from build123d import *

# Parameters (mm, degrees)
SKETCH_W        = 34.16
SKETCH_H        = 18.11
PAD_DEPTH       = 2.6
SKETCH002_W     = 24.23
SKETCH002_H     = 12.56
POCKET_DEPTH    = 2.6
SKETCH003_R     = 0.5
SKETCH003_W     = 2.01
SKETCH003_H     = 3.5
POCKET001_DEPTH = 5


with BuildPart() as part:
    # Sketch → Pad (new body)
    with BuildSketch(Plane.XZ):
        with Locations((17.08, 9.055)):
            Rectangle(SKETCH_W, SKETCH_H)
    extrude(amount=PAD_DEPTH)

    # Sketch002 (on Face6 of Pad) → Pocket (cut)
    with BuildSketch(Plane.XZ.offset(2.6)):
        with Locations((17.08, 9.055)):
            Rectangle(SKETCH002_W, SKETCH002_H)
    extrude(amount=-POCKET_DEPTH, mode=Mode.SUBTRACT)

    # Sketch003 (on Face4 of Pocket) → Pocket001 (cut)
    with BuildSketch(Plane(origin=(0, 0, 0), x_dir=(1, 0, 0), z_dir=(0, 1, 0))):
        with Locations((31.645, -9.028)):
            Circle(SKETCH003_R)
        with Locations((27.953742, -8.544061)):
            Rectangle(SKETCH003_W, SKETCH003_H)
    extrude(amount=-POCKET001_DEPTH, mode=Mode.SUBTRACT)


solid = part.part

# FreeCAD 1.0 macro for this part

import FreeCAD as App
import Part
import Sketcher
Q = App.Units.Quantity


def add_polygon(sketch, points):
    """Adds a closed chain of lines whose ends are joined by coincident constraints."""
    first, n = sketch.GeometryCount, len(points)
    for a, b in zip(points, points[1:] + points[:1]):
        sketch.addGeometry(Part.LineSegment(App.Vector(*a, 0), App.Vector(*b, 0)), False)
    for i in range(n):
        sketch.addConstraint(Sketcher.Constraint("Coincident", first + i, 2, first + (i + 1) % n, 1))

doc = App.newDocument("Part")
body = doc.addObject("PartDesign::Body", "Body")

# Sketch on XZ plane
sketch1 = body.newObject("Sketcher::SketchObject", "Sketch")
sketch1.AttachmentSupport = (doc.getObject("XZ_Plane"), [""])
sketch1.MapMode = "FlatFace"
add_polygon(sketch1, [(0, 18), (0, 0), (34, 0), (34, 18)])  # lines 0-3
sketch1.addConstraint(Sketcher.Constraint("Vertical", 0))
sketch1.addConstraint(Sketcher.Constraint("Horizontal", 1))
sketch1.addConstraint(Sketcher.Constraint("Vertical", 2))
sketch1.addConstraint(Sketcher.Constraint("Horizontal", 3))
sketch1.addConstraint(Sketcher.Constraint("Coincident", 0, 2, -1, 1))
sketch1.addConstraint(Sketcher.Constraint("DistanceX", 1, 1, 1, 2, Q("34.16 mm")))
sketch1.addConstraint(Sketcher.Constraint("DistanceY", 0, 2, 0, 1, Q("18.11 mm")))
pad1 = body.newObject("PartDesign::Pad", "Pad")
pad1.Profile = sketch1
pad1.Length = 2.6

# Sketch on XZ plane
sketch2 = body.newObject("Sketcher::SketchObject", "Sketch001")
sketch2.AttachmentSupport = (doc.getObject("XZ_Plane"), [""])
sketch2.MapMode = "FlatFace"
sketch2.AttachmentOffset = App.Placement(App.Vector(0, 0, 2.6), App.Rotation())
add_polygon(sketch2, [(5, 15), (5, 3), (29, 3), (29, 15)])  # lines 0-3
sketch2.addConstraint(Sketcher.Constraint("Vertical", 0))
sketch2.addConstraint(Sketcher.Constraint("Horizontal", 1))
sketch2.addConstraint(Sketcher.Constraint("Vertical", 2))
sketch2.addConstraint(Sketcher.Constraint("Horizontal", 3))
sketch2.addConstraint(Sketcher.Constraint("DistanceX", 1, 1, 1, 2, Q("24.23 mm")))
sketch2.addConstraint(Sketcher.Constraint("DistanceY", 0, 2, 0, 1, Q("12.56 mm")))
sketch2.addConstraint(Sketcher.Constraint("DistanceX", -1, 1, 0, 2, Q("4.965 mm")))
sketch2.addConstraint(Sketcher.Constraint("DistanceY", -1, 1, 0, 2, Q("2.775 mm")))
pocket1 = body.newObject("PartDesign::Pocket", "Pocket")
pocket1.Profile = sketch2
pocket1.Length = 2.6

# Sketch on XZ plane
sketch3 = body.newObject("Sketcher::SketchObject", "Sketch002")
sketch3.AttachmentSupport = (doc.getObject("XZ_Plane"), [""])
sketch3.MapMode = "FlatFace"
sketch3.addGeometry(Part.Circle(App.Vector(31.6, 9, 0), App.Vector(0, 0, 1), 0.5), False)  # 0
add_polygon(sketch3, [(26.9, 6.8), (26.9, 10.3), (29, 10.3), (29, 6.8)])  # lines 1-4
sketch3.addConstraint(Sketcher.Constraint("Vertical", 1))
sketch3.addConstraint(Sketcher.Constraint("Horizontal", 2))
sketch3.addConstraint(Sketcher.Constraint("Vertical", 3))
sketch3.addConstraint(Sketcher.Constraint("Horizontal", 4))
sketch3.addConstraint(Sketcher.Constraint("Diameter", 0, Q("1 mm")))
sketch3.addConstraint(Sketcher.Constraint("DistanceY", 1, 1, 1, 2, Q("3.5 mm")))
sketch3.addConstraint(Sketcher.Constraint("DistanceX", 2, 1, 2, 2, Q("2.01 mm")))
sketch3.addConstraint(Sketcher.Constraint("DistanceX", -1, 1, 0, 3, Q("31.645 mm")))
sketch3.addConstraint(Sketcher.Constraint("DistanceY", -1, 1, 0, 3, Q("9.028 mm")))
sketch3.addConstraint(Sketcher.Constraint("DistanceX", -1, 1, 1, 2, Q("26.948742 mm")))
sketch3.addConstraint(Sketcher.Constraint("DistanceY", -1, 1, 1, 2, Q("10.294061 mm")))
pocket2 = body.newObject("PartDesign::Pocket", "Pocket001")
pocket2.Profile = sketch3
pocket2.Length = 5
pocket2.Reversed = True

doc.recompute()
